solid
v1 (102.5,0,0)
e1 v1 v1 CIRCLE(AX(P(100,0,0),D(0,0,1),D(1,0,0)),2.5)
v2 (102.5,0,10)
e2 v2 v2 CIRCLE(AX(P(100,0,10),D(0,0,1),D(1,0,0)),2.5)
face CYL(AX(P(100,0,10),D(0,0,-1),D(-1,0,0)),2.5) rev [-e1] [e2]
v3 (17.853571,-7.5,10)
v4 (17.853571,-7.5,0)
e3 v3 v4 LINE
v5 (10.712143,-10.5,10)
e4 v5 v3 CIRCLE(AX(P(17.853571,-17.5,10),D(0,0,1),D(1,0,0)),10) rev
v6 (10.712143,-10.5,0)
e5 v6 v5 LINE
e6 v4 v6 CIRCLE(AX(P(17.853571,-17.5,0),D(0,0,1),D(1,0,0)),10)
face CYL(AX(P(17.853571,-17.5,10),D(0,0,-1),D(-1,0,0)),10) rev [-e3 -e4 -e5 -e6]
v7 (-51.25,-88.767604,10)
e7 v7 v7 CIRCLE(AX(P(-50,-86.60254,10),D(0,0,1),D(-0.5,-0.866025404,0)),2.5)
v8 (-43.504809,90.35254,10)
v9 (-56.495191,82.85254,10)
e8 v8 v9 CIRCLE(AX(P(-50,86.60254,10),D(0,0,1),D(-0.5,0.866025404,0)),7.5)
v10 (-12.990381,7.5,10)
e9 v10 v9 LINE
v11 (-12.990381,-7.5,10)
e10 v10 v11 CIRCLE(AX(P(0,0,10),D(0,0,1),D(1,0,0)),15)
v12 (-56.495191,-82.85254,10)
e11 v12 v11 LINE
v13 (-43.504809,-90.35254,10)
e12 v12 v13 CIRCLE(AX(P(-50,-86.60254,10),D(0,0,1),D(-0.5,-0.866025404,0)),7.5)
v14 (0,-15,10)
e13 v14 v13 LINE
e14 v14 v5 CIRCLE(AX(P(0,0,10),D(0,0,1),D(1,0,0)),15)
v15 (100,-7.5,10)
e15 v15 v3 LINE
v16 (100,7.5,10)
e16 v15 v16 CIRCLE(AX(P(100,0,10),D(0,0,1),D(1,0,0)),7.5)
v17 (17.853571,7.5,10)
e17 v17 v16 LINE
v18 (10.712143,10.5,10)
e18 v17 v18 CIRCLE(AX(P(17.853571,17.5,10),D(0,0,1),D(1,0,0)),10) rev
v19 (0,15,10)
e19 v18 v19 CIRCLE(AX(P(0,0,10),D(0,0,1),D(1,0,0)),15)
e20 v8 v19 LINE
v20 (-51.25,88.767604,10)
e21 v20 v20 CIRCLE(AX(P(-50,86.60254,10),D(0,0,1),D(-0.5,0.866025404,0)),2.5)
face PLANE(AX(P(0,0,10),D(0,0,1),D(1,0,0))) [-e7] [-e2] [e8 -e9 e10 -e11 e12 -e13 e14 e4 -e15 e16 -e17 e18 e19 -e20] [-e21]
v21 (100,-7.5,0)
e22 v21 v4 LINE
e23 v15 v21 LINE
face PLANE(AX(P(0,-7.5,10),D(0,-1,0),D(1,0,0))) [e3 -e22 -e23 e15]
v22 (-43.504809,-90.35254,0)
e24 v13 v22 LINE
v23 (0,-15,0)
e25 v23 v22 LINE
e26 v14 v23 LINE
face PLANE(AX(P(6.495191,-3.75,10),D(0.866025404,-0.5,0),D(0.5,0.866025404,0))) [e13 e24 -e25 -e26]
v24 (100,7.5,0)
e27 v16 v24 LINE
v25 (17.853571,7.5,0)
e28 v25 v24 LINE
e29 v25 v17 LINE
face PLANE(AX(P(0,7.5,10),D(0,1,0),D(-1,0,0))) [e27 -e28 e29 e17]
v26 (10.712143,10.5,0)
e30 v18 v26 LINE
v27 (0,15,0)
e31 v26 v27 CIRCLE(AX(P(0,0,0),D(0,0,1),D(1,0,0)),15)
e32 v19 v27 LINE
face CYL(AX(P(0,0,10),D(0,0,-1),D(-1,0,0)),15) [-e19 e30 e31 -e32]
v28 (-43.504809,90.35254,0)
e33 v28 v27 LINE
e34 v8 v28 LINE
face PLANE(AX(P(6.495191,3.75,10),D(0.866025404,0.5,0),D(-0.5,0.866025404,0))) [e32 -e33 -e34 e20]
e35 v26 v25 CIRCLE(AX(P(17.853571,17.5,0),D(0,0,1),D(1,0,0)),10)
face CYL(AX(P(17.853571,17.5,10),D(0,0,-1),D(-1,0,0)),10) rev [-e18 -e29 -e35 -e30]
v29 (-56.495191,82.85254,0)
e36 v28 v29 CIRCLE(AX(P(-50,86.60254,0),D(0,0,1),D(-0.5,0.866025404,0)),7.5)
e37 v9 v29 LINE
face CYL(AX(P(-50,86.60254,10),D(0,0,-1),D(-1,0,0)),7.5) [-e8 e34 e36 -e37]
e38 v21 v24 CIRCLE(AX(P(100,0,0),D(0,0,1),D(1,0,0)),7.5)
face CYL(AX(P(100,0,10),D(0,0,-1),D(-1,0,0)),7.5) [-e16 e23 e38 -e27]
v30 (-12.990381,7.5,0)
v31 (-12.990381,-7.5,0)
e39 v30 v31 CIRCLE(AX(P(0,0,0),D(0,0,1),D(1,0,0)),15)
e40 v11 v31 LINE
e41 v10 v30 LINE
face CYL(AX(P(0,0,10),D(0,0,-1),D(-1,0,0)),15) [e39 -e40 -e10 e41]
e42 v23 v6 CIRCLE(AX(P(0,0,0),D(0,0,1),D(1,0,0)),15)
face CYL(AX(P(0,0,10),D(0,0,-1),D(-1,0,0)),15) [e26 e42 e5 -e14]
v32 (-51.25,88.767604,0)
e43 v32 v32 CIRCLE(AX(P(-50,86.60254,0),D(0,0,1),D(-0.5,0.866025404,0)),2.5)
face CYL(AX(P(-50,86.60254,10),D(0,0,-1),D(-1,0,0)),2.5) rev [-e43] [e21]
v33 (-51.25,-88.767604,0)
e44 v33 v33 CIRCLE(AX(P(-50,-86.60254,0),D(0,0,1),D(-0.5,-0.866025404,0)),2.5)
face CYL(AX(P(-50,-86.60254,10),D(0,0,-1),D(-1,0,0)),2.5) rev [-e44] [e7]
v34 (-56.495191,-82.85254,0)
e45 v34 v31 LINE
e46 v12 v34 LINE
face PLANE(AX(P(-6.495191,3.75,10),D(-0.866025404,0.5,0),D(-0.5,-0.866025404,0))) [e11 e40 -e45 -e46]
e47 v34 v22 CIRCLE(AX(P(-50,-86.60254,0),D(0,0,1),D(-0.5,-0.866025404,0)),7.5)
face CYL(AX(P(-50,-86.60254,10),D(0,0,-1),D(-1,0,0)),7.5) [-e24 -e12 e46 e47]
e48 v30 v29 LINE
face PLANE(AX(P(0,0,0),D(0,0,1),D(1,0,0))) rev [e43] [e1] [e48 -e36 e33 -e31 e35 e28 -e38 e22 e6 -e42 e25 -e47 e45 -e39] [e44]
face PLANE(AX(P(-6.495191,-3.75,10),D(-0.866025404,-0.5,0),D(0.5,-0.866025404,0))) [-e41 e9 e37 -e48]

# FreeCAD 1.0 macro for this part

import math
import FreeCAD as App
import Part
import Sketcher


def edges_at(feature, points):
    """Names of the edges that pass closest to the given points."""
    edges = feature.Shape.Edges
    near = lambda p: min(range(len(edges)), key=lambda i: edges[i].distToShape(Part.Vertex(*p))[0])
    return sorted({f"Edge{near(p) + 1}" for p in points})

doc = App.newDocument("Part")
body = doc.addObject("PartDesign::Body", "Body")

# Sketch on XY plane
sketch1 = body.newObject("Sketcher::SketchObject", "Sketch")
sketch1.AttachmentSupport = (doc.getObject("XY_Plane"), [""])
sketch1.MapMode = "FlatFace"
sketch1.addGeometry(Part.LineSegment(App.Vector(13, -7.5, 0), App.Vector(100, -7.5, 0)), False)
sketch1.addGeometry(Part.ArcOfCircle(Part.Circle(App.Vector(100, 0, 0), App.Vector(0, 0, 1), 7.5), math.radians(-90), math.radians(90)), False)
sketch1.addGeometry(Part.LineSegment(App.Vector(100, 7.5, 0), App.Vector(13, 7.5, 0)), False)
sketch1.addGeometry(Part.ArcOfCircle(Part.Circle(App.Vector(0, 0, 0), App.Vector(0, 0, 1), 15), math.radians(30), math.radians(330)), False)
sketch1.addGeometry(Part.Circle(App.Vector(100, 0, 0), App.Vector(0, 0, 1), 2.5), False)
sketch1.addConstraint(Sketcher.Constraint("Tangent", 0, 2, 1, 1))
sketch1.addConstraint(Sketcher.Constraint("Tangent", 1, 2, 2, 1))
sketch1.addConstraint(Sketcher.Constraint("Coincident", 2, 2, 3, 1))
sketch1.addConstraint(Sketcher.Constraint("Coincident", 3, 2, 0, 1))
sketch1.addConstraint(Sketcher.Constraint("Horizontal", 0))
sketch1.addConstraint(Sketcher.Constraint("Horizontal", 2))
sketch1.addConstraint(Sketcher.Constraint("Coincident", 3, 3, -1, 1))
sketch1.addConstraint(Sketcher.Constraint("Coincident", 4, 3, 1, 3))
sketch1.addConstraint(Sketcher.Constraint("PointOnObject", 1, 3, -1))
sketch1.addConstraint(Sketcher.Constraint("Diameter", 4, 5.0))
sketch1.addConstraint(Sketcher.Constraint("Radius", 3, 15.0))
sketch1.addConstraint(Sketcher.Constraint("Radius", 1, 7.5))
sketch1.addConstraint(Sketcher.Constraint("DistanceX", -1, 1, 1, 3, 100.0))
pad1 = body.newObject("PartDesign::Pad", "Pad")
pad1.Profile = sketch1
pad1.Length = 10
doc.recompute()

fillet = body.newObject("PartDesign::Fillet", "Fillet")
fillet.Base = (pad1, edges_at(pad1, [(12.99, -7.5, 5), (12.99, 7.5, 5)]))
fillet.Radius = 10
doc.recompute()

polarpattern = body.newObject("PartDesign::PolarPattern", "PolarPattern")
polarpattern.Originals = [pad1]
polarpattern.Axis = (doc.getObject("Z_Axis"), [""])
polarpattern.Angle = 360
polarpattern.Occurrences = 3
body.Tip = polarpattern

doc.recompute()
